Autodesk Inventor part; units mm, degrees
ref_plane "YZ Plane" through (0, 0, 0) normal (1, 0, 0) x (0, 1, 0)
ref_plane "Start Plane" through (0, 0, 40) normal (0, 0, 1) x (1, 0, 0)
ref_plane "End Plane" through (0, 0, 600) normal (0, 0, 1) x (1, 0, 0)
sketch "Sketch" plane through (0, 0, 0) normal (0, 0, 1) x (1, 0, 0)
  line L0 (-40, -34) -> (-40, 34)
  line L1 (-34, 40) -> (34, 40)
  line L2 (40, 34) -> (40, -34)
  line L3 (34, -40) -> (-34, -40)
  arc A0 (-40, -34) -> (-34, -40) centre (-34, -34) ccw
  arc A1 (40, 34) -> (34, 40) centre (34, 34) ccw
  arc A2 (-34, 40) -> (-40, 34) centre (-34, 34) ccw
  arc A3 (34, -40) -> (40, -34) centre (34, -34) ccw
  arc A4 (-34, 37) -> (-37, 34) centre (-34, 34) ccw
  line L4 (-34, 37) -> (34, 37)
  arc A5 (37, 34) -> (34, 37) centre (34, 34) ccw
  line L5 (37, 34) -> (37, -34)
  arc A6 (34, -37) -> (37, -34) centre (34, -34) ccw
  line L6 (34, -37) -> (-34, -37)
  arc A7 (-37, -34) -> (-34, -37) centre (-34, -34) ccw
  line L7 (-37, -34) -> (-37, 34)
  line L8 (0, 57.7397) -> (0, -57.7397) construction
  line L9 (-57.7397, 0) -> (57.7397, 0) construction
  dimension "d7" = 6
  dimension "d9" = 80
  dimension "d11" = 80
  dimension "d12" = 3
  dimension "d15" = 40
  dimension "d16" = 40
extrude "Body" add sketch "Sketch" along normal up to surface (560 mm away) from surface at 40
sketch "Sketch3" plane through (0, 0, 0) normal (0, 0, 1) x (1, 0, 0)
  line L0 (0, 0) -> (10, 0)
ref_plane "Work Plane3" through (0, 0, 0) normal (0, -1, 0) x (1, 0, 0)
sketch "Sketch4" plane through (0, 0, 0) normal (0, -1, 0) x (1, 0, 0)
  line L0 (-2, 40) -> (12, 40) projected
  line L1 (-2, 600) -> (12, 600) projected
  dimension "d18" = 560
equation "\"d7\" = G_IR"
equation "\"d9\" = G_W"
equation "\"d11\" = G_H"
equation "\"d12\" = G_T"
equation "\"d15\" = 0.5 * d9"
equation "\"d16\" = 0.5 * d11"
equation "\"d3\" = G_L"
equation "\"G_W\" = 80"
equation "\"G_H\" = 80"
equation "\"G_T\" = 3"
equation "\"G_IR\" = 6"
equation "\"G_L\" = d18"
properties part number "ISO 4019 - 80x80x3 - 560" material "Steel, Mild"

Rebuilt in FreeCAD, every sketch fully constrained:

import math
import FreeCAD as App
import Part
import Sketcher

doc = App.newDocument("Part")
body = doc.addObject("PartDesign::Body", "Body")

sketch1 = body.newObject("Sketcher::SketchObject", "Sketch")
sketch1.AttachmentSupport = (doc.getObject("XY_Plane"), [""])
sketch1.MapMode = "FlatFace"
sketch1.AttachmentOffset = App.Placement(App.Vector(0, 0, 40), App.Rotation())
sketch1.addGeometry(Part.LineSegment(App.Vector(-40, 34, 0), App.Vector(-40, -34, 0)), False)
sketch1.addGeometry(Part.ArcOfCircle(Part.Circle(App.Vector(-34, -34, 0), App.Vector(0, 0, 1), 6), math.radians(180), math.radians(270)), False)
sketch1.addGeometry(Part.LineSegment(App.Vector(-34, -40, 0), App.Vector(34, -40, 0)), False)
sketch1.addGeometry(Part.ArcOfCircle(Part.Circle(App.Vector(34, -34, 0), App.Vector(0, 0, 1), 6), math.radians(-90), math.radians(0)), False)
sketch1.addGeometry(Part.LineSegment(App.Vector(40, -34, 0), App.Vector(40, 34, 0)), False)
sketch1.addGeometry(Part.ArcOfCircle(Part.Circle(App.Vector(34, 34, 0), App.Vector(0, 0, 1), 6), math.radians(0), math.radians(90)), False)
sketch1.addGeometry(Part.LineSegment(App.Vector(34, 40, 0), App.Vector(-34, 40, 0)), False)
sketch1.addGeometry(Part.ArcOfCircle(Part.Circle(App.Vector(-34, 34, 0), App.Vector(0, 0, 1), 6), math.radians(90), math.radians(180)), False)
sketch1.addGeometry(Part.ArcOfCircle(Part.Circle(App.Vector(-34, 34, 0), App.Vector(0, 0, 1), 3), math.radians(90), math.radians(180)), False)
sketch1.addGeometry(Part.LineSegment(App.Vector(-34, 37, 0), App.Vector(34, 37, 0)), False)
sketch1.addGeometry(Part.ArcOfCircle(Part.Circle(App.Vector(34, 34, 0), App.Vector(0, 0, 1), 3), math.radians(0), math.radians(90)), False)
sketch1.addGeometry(Part.LineSegment(App.Vector(37, 34, 0), App.Vector(37, -34, 0)), False)
sketch1.addGeometry(Part.ArcOfCircle(Part.Circle(App.Vector(34, -34, 0), App.Vector(0, 0, 1), 3), math.radians(-90), math.radians(0)), False)
sketch1.addGeometry(Part.LineSegment(App.Vector(34, -37, 0), App.Vector(-34, -37, 0)), False)
sketch1.addGeometry(Part.ArcOfCircle(Part.Circle(App.Vector(-34, -34, 0), App.Vector(0, 0, 1), 3), math.radians(180), math.radians(270)), False)
sketch1.addGeometry(Part.LineSegment(App.Vector(-37, -34, 0), App.Vector(-37, 34, 0)), False)
sketch1.addConstraint(Sketcher.Constraint("Tangent", 0, 2, 1, 1))
sketch1.addConstraint(Sketcher.Constraint("Tangent", 1, 2, 2, 1))
sketch1.addConstraint(Sketcher.Constraint("Tangent", 2, 2, 3, 1))
sketch1.addConstraint(Sketcher.Constraint("Tangent", 3, 2, 4, 1))
sketch1.addConstraint(Sketcher.Constraint("Tangent", 4, 2, 5, 1))
sketch1.addConstraint(Sketcher.Constraint("Tangent", 5, 2, 6, 1))
sketch1.addConstraint(Sketcher.Constraint("Tangent", 6, 2, 7, 1))
sketch1.addConstraint(Sketcher.Constraint("Tangent", 7, 2, 0, 1))
sketch1.addConstraint(Sketcher.Constraint("Tangent", 8, 1, 9, 1))
sketch1.addConstraint(Sketcher.Constraint("Tangent", 9, 2, 10, 2))
sketch1.addConstraint(Sketcher.Constraint("Tangent", 10, 1, 11, 1))
sketch1.addConstraint(Sketcher.Constraint("Tangent", 11, 2, 12, 2))
sketch1.addConstraint(Sketcher.Constraint("Tangent", 12, 1, 13, 1))
sketch1.addConstraint(Sketcher.Constraint("Tangent", 13, 2, 14, 2))
sketch1.addConstraint(Sketcher.Constraint("Tangent", 14, 1, 15, 1))
sketch1.addConstraint(Sketcher.Constraint("Tangent", 15, 2, 8, 2))
sketch1.addConstraint(Sketcher.Constraint("Vertical", 0))
sketch1.addConstraint(Sketcher.Constraint("Horizontal", 2))
sketch1.addConstraint(Sketcher.Constraint("Vertical", 4))
sketch1.addConstraint(Sketcher.Constraint("Horizontal", 6))
sketch1.addConstraint(Sketcher.Constraint("Horizontal", 9))
sketch1.addConstraint(Sketcher.Constraint("Vertical", 11))
sketch1.addConstraint(Sketcher.Constraint("Horizontal", 13))
sketch1.addConstraint(Sketcher.Constraint("Vertical", 15))
sketch1.addConstraint(Sketcher.Constraint("Coincident", 8, 3, 7, 3))
sketch1.addConstraint(Sketcher.Constraint("Coincident", 10, 3, 5, 3))
sketch1.addConstraint(Sketcher.Constraint("Coincident", 12, 3, 3, 3))
sketch1.addConstraint(Sketcher.Constraint("Equal", 1, 3))
sketch1.addConstraint(Sketcher.Constraint("Equal", 3, 5))
sketch1.addConstraint(Sketcher.Constraint("Equal", 5, 7))
sketch1.addConstraint(Sketcher.Constraint("Equal", 12, 14))
sketch1.addConstraint(Sketcher.Constraint("Symmetric", 1, 3, 5, 3, -1, 1))
sketch1.addConstraint(Sketcher.Constraint("Equal", 13, 0))
sketch1.addConstraint(Sketcher.Constraint("Radius", 1, 6.0))
sketch1.addConstraint(Sketcher.Constraint("Radius", 8, 3.0))
sketch1.addConstraint(Sketcher.Constraint("DistanceX", 0, 2, -1, 1, 40.0))
pad1 = body.newObject("PartDesign::Pad", "Pad")
pad1.Profile = sketch1
pad1.Length = 560

doc.recompute()
